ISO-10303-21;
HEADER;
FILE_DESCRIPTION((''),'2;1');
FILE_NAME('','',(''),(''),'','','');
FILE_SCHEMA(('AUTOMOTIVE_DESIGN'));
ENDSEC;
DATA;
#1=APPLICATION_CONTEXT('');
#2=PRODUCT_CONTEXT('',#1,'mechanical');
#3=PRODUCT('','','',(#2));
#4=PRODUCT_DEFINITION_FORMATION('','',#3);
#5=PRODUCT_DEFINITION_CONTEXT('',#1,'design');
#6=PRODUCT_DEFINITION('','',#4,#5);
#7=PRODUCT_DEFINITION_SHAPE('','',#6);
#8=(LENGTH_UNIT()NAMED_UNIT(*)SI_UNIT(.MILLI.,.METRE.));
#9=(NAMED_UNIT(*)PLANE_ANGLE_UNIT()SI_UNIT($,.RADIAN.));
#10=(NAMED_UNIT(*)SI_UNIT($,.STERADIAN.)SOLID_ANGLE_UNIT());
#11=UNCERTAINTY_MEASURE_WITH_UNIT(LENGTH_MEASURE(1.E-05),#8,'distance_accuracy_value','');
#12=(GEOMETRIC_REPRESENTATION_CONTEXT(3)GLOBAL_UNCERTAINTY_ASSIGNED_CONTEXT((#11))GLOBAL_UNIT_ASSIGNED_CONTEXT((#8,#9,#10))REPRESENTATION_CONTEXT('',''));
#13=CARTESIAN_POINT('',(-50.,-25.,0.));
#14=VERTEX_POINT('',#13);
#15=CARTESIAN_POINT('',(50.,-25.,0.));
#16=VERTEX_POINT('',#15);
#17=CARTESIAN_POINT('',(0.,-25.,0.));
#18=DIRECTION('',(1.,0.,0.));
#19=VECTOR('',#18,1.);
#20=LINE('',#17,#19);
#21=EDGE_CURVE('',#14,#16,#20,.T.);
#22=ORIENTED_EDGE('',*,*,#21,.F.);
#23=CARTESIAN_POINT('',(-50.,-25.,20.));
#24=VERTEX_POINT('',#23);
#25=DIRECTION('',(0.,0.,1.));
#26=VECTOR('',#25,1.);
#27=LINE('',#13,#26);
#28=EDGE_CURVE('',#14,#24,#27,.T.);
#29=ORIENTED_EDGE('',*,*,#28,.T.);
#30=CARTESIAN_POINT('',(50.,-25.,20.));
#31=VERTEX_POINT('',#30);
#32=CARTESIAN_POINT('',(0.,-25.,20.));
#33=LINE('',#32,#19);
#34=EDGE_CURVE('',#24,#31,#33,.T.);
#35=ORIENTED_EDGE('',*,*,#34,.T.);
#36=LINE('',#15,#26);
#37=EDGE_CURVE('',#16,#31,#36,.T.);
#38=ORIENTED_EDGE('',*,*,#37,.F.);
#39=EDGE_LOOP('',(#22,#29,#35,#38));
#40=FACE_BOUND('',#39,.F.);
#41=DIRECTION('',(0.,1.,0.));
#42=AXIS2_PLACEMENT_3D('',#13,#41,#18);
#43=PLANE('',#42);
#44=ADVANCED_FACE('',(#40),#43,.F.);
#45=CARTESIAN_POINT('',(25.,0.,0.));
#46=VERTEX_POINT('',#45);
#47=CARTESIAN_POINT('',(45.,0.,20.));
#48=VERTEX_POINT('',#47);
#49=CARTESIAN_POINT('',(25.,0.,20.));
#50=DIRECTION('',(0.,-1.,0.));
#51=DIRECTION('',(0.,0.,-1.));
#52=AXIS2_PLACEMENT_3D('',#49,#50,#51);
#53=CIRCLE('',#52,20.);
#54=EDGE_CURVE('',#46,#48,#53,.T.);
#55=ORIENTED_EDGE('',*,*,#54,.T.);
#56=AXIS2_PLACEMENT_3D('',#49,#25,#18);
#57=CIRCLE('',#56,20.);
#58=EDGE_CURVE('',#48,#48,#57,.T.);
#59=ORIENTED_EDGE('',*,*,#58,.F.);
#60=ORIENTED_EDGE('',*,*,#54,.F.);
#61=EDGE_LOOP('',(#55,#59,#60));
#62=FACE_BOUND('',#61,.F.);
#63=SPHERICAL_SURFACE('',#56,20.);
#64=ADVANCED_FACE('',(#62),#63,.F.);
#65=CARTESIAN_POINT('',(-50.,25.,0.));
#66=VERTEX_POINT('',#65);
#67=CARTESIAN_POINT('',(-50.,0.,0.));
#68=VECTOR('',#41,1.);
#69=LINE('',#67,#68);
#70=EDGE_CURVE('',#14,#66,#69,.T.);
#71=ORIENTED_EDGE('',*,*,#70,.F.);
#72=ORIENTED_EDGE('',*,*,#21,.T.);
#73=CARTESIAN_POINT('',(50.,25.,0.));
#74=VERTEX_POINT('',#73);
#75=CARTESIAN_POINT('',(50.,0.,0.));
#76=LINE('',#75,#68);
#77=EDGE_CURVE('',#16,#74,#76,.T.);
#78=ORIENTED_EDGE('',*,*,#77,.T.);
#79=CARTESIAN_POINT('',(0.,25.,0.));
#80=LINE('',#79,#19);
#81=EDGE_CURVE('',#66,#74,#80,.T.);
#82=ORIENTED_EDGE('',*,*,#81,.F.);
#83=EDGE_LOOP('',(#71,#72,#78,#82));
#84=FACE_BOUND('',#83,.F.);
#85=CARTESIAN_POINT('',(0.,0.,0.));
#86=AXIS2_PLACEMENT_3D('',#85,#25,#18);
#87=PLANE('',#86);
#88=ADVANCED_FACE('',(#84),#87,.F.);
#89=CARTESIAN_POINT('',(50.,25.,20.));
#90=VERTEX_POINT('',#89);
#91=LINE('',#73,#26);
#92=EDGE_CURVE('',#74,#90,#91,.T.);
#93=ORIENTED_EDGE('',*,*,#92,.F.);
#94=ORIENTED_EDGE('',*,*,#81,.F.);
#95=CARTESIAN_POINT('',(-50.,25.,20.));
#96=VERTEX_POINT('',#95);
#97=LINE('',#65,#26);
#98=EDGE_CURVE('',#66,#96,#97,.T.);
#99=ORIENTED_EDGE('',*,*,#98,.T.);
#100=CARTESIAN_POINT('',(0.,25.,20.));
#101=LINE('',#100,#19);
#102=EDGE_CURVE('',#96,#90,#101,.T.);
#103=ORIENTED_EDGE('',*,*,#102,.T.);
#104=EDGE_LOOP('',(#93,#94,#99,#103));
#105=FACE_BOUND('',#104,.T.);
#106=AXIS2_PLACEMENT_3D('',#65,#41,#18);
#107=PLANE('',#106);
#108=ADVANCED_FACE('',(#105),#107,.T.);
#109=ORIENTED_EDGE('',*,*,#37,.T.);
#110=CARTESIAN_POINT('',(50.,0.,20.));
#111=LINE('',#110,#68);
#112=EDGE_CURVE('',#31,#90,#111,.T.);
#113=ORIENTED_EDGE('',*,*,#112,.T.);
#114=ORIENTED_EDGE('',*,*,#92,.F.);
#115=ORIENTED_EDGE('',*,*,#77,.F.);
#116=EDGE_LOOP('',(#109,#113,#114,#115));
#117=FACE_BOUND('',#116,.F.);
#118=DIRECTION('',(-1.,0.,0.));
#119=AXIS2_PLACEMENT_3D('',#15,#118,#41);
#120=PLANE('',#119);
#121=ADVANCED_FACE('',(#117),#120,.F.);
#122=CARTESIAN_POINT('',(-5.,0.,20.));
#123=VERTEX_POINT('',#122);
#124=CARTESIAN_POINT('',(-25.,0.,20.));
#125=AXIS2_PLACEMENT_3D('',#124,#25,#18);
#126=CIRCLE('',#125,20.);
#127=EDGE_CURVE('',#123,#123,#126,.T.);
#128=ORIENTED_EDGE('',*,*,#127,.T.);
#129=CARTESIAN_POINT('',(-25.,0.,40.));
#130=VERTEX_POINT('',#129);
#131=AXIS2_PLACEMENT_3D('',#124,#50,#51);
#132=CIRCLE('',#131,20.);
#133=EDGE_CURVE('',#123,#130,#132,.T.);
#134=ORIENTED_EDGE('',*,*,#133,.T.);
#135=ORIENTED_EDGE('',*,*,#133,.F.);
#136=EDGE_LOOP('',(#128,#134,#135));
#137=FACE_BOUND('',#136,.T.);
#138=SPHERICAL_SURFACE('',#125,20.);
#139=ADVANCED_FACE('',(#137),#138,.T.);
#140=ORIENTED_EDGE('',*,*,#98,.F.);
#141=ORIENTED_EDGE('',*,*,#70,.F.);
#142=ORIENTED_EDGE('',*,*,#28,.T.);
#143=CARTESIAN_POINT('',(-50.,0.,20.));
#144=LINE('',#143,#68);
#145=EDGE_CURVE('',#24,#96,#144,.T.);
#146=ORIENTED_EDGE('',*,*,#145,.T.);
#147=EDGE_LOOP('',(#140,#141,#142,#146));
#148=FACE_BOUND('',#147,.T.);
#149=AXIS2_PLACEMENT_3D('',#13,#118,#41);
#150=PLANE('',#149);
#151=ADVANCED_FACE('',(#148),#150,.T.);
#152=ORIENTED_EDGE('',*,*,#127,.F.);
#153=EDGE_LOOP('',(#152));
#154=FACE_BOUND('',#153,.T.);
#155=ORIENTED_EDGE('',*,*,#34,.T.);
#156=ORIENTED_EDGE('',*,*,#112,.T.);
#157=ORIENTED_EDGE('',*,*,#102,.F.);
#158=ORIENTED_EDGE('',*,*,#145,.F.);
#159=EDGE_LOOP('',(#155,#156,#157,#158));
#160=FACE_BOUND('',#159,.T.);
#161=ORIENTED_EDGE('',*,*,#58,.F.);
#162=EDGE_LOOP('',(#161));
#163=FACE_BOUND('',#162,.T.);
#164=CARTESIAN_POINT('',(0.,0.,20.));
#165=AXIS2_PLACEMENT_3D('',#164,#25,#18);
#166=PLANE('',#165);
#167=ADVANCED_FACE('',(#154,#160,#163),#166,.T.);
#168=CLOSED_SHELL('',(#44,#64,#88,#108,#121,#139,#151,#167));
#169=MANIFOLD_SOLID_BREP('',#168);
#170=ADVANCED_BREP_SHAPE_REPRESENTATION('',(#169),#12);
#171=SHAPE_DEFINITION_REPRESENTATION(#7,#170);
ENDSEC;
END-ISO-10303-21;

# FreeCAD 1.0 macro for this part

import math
import FreeCAD as App
import Part
import Sketcher
from FreeCAD import Vector

doc = App.newDocument("Part")
body = doc.addObject("PartDesign::Body", "Body")

# Sketch on XY plane
sketch1 = doc.addObject("Sketcher::SketchObject", "Sketch")
body.addObject(sketch1)
sketch1.AttachmentSupport = (doc.XY_Plane, [""])
sketch1.MapMode = "FlatFace"
sketch1.addGeometry([
    Part.LineSegment(Vector(-50, 25, 0), Vector(-50, -25, 0)),
    Part.LineSegment(Vector(-50, -25, 0), Vector(50, -25, 0)),
    Part.LineSegment(Vector(50, -25, 0), Vector(50, 25, 0)),
    Part.LineSegment(Vector(50, 25, 0), Vector(-50, 25, 0)),
], False)
sketch1.addConstraint([
    Sketcher.Constraint("Coincident", 0, 2, 1, 1),
    Sketcher.Constraint("Coincident", 1, 2, 2, 1),
    Sketcher.Constraint("Coincident", 2, 2, 3, 1),
    Sketcher.Constraint("Coincident", 3, 2, 0, 1),
    Sketcher.Constraint("Vertical", 0),
    Sketcher.Constraint("Horizontal", 1),
    Sketcher.Constraint("Vertical", 2),
    Sketcher.Constraint("Horizontal", 3),
    Sketcher.Constraint("Symmetric", 0, 2, 2, 2, -1, 1),
    Sketcher.Constraint("DistanceX", 1, 1, 1, 2, 100.0),
    Sketcher.Constraint("DistanceY", 0, 2, 0, 1, 50.0),
])
pad1 = doc.addObject("PartDesign::Pad", "Pad")
body.addObject(pad1)
pad1.Profile = sketch1
pad1.Length = 20

# Sketch on XZ plane
sketch2 = doc.addObject("Sketcher::SketchObject", "Sketch001")
body.addObject(sketch2)
sketch2.AttachmentSupport = (doc.XZ_Plane, [""])
sketch2.MapMode = "FlatFace"
sketch2.addGeometry([
    Part.ArcOfCircle(Part.Circle(Vector(-25, 20, 0), Vector(0, 0, 1), 20), math.radians(-90), math.radians(90)),
    Part.LineSegment(Vector(-25, 40, 0), Vector(-25, 0, 0)),
], False)
sketch2.addGeometry(Part.LineSegment(Vector(-25, 0, 0), Vector(-25, 40, 0)), True)  # axis
sketch2.addConstraint([
    Sketcher.Constraint("Coincident", 0, 1, 1, 2),
    Sketcher.Constraint("Coincident", 1, 1, 0, 2),
    Sketcher.Constraint("Vertical", 1),
    Sketcher.Constraint("Vertical", 2),
    Sketcher.Constraint("Coincident", 2, 1, 0, 1),
    Sketcher.Constraint("PointOnObject", 0, 1, -1),
    Sketcher.Constraint("Equal", 1, 2),
    Sketcher.Constraint("Radius", 0, 20.0),
    Sketcher.Constraint("DistanceX", 0, 3, -1, 1, 25.0),
    Sketcher.Constraint("DistanceX", 0, 1, -1, 1, 25.0),
])
revolution = doc.addObject("PartDesign::Revolution", "Revolution")
body.addObject(revolution)
revolution.Profile = sketch2
revolution.ReferenceAxis = (sketch2, ["Axis0"])
revolution.Angle = 360

# Sketch on XZ plane
sketch3 = doc.addObject("Sketcher::SketchObject", "Sketch002")
body.addObject(sketch3)
sketch3.AttachmentSupport = (doc.XZ_Plane, [""])
sketch3.MapMode = "FlatFace"
sketch3.addGeometry([
    Part.ArcOfCircle(Part.Circle(Vector(25, 20, 0), Vector(0, 0, 1), 20), math.radians(-90), math.radians(90)),
    Part.LineSegment(Vector(25, 40, 0), Vector(25, 0, 0)),
], False)
sketch3.addGeometry(Part.LineSegment(Vector(25, 0, 0), Vector(25, 40, 0)), True)  # axis
sketch3.addConstraint([
    Sketcher.Constraint("Coincident", 0, 1, 1, 2),
    Sketcher.Constraint("Coincident", 1, 1, 0, 2),
    Sketcher.Constraint("Vertical", 1),
    Sketcher.Constraint("Vertical", 2),
    Sketcher.Constraint("Coincident", 2, 1, 0, 1),
    Sketcher.Constraint("PointOnObject", 0, 1, -1),
    Sketcher.Constraint("Equal", 1, 2),
    Sketcher.Constraint("Radius", 0, 20.0),
    Sketcher.Constraint("DistanceX", -1, 1, 0, 3, 25.0),
    Sketcher.Constraint("DistanceX", -1, 1, 0, 1, 25.0),
])
groove = doc.addObject("PartDesign::Groove", "Groove")
body.addObject(groove)
groove.Profile = sketch3
groove.ReferenceAxis = (sketch3, ["Axis0"])
groove.Angle = 360

doc.recompute()
